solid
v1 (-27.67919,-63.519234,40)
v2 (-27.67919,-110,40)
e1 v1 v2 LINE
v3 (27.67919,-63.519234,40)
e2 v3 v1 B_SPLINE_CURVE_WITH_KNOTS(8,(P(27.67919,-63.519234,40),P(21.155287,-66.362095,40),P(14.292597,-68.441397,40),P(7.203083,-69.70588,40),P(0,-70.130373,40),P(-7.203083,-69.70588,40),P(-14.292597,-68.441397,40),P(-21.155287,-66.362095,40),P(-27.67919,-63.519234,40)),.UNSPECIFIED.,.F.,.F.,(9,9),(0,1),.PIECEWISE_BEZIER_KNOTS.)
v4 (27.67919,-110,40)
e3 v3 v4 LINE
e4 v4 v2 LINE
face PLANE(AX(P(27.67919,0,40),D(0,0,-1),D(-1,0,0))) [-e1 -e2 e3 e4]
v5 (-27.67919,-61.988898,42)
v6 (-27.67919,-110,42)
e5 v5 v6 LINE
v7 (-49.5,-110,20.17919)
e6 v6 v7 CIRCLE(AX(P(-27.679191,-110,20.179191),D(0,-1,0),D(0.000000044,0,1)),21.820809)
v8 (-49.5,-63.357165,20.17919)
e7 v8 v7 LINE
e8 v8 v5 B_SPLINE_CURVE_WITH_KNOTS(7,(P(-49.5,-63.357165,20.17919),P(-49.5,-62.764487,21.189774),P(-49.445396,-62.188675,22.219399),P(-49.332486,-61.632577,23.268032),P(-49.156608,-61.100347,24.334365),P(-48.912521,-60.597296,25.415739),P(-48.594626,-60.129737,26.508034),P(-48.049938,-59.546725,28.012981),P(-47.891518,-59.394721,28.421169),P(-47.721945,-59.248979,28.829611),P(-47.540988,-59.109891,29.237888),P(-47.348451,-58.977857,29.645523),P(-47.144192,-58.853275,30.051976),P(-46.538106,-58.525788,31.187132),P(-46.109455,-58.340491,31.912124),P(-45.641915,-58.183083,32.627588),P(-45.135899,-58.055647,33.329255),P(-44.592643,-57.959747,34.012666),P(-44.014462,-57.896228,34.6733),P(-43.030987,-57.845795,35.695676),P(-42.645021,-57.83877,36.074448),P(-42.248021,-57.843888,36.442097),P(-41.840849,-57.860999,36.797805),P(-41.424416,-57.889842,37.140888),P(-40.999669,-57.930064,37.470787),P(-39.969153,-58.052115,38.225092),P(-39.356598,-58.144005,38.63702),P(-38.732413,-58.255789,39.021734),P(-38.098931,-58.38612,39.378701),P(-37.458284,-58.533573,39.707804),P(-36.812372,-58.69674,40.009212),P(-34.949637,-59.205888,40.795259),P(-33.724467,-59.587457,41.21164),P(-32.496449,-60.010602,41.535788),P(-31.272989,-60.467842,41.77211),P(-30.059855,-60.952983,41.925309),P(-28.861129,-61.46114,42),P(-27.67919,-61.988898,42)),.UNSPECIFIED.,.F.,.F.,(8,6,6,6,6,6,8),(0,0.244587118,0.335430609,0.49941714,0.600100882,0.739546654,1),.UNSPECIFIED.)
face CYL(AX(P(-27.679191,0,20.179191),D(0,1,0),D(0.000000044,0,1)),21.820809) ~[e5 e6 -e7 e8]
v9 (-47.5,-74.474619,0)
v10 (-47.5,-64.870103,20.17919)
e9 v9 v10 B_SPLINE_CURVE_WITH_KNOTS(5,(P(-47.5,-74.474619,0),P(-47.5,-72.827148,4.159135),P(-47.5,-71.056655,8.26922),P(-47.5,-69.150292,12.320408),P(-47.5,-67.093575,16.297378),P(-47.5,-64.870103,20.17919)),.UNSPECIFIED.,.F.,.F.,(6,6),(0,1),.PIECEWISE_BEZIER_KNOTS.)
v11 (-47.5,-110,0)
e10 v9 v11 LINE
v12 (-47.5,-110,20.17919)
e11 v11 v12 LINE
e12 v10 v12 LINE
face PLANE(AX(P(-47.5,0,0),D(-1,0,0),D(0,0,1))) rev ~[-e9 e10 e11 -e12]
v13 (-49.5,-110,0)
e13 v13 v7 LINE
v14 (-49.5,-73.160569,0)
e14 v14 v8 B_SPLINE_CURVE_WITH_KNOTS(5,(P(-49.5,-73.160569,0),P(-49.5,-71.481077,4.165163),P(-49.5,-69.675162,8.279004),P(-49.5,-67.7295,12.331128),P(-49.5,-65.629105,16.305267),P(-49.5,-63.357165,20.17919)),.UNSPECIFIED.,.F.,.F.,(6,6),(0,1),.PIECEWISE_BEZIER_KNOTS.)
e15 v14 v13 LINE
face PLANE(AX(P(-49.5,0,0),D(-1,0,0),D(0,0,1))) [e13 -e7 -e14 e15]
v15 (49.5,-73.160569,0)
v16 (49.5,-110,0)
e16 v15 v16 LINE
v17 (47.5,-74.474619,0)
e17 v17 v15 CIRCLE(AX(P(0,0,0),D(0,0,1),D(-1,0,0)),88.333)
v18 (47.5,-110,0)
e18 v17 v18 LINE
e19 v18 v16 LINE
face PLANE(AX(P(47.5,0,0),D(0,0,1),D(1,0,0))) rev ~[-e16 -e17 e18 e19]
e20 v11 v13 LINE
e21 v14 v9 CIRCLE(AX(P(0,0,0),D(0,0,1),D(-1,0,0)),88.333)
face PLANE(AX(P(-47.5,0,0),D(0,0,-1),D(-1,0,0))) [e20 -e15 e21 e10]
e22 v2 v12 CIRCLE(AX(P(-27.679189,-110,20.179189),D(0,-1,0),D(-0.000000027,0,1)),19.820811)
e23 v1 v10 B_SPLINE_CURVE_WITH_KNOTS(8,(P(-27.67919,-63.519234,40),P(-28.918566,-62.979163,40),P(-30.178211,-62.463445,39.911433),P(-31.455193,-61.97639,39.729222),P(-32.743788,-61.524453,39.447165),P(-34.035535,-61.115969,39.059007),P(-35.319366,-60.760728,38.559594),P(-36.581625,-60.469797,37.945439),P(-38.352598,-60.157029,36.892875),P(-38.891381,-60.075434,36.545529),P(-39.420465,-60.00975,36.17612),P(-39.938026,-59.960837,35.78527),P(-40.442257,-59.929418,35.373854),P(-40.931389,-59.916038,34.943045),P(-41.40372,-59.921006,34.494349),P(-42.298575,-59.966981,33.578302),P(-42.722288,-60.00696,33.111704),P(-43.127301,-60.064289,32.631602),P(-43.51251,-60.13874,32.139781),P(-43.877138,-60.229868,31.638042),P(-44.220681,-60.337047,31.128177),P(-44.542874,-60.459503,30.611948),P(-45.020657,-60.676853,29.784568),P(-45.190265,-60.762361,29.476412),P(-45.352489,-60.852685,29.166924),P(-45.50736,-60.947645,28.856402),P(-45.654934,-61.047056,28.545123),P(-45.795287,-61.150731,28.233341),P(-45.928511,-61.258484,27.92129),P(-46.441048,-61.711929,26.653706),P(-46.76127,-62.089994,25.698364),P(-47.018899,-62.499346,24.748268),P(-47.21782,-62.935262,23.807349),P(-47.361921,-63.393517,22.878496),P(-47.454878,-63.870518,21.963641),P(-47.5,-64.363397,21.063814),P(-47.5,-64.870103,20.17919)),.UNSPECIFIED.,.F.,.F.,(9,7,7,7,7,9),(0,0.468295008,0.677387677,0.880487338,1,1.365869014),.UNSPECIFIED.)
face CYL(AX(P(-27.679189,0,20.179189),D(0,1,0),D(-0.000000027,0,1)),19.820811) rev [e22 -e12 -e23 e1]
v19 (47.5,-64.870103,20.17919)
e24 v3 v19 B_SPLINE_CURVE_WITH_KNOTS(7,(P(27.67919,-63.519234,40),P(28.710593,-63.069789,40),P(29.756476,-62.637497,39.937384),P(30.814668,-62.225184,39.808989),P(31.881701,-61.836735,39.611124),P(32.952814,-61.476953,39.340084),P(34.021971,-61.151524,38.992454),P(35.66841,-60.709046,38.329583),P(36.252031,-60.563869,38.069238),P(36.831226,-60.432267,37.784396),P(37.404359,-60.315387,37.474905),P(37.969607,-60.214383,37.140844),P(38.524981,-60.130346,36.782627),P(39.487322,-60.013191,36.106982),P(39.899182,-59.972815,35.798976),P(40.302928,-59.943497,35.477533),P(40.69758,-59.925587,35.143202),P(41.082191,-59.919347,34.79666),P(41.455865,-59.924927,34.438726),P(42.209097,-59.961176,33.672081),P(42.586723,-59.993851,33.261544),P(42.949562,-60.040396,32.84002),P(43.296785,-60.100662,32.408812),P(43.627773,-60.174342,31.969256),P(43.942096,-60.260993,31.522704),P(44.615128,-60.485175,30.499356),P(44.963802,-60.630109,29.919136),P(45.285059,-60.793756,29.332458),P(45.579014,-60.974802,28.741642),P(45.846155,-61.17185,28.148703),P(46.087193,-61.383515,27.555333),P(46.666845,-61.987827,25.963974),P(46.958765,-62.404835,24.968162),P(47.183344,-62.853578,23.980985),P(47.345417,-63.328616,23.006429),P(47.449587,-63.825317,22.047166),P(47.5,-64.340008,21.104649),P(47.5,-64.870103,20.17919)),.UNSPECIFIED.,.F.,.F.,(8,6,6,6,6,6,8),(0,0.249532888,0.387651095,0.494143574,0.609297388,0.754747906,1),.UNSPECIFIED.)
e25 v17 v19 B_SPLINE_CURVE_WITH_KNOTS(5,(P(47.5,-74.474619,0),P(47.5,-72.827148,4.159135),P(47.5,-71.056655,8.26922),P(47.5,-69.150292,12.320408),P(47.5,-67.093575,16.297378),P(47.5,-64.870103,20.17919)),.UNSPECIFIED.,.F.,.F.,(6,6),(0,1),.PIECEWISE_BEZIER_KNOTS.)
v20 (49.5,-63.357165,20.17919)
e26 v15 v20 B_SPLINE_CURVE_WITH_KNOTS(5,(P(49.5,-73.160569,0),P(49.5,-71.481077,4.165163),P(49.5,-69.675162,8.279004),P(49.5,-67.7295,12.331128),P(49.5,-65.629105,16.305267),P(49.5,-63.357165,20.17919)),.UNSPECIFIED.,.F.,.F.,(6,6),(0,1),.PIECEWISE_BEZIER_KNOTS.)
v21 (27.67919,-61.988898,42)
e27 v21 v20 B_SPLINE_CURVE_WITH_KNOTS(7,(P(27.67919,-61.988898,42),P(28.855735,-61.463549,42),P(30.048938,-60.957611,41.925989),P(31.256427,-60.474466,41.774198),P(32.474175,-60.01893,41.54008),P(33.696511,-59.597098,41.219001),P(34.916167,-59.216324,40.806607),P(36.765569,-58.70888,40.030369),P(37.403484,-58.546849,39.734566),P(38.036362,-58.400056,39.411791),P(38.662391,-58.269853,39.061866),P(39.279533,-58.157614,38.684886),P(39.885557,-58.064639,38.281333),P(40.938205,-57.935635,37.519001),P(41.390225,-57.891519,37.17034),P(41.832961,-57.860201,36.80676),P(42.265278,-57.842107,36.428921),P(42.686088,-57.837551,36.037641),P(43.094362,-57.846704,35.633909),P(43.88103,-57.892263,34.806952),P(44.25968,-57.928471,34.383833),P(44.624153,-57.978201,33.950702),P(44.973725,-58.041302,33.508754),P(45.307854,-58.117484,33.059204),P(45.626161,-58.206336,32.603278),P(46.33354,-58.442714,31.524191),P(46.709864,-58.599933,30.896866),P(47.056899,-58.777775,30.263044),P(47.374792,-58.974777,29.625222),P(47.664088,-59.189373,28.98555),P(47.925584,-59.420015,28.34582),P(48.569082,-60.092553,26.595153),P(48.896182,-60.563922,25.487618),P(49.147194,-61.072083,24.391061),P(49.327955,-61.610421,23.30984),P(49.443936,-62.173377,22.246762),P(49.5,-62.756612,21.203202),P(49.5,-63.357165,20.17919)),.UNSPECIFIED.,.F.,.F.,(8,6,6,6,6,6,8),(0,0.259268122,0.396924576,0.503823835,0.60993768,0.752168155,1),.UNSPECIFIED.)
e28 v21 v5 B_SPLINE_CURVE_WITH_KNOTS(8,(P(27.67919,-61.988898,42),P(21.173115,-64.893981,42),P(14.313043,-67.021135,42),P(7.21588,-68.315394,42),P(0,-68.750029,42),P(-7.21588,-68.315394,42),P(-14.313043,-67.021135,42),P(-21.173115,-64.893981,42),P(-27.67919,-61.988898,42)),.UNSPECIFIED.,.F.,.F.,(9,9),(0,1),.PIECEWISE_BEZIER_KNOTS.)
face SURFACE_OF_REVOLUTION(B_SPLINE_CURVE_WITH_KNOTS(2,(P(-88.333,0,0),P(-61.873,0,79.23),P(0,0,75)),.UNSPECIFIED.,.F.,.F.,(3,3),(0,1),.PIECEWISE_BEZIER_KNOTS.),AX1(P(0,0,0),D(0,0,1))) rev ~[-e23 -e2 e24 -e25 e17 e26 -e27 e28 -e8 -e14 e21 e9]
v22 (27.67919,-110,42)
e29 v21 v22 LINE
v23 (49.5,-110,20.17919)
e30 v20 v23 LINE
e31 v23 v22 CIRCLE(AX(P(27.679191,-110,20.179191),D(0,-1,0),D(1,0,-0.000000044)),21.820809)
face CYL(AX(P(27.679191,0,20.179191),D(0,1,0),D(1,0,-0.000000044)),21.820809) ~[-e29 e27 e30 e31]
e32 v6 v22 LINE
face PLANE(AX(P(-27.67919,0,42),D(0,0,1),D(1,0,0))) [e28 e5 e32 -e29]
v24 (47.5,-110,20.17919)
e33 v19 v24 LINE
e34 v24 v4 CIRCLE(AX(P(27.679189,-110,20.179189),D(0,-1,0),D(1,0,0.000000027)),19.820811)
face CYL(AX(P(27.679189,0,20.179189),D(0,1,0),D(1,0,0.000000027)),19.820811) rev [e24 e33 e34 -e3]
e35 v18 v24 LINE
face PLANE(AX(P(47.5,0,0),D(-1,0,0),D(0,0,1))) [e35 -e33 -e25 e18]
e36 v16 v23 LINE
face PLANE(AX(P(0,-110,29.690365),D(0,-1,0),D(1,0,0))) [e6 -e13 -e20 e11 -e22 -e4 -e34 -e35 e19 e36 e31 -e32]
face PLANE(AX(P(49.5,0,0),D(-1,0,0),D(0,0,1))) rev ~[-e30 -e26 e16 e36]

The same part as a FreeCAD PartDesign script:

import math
import FreeCAD as App
import Part
import Sketcher

doc = App.newDocument("Part")
body = doc.addObject("PartDesign::Body", "Body")

# Sketch on XZ plane
sketch1 = doc.addObject("Sketcher::SketchObject", "Sketch")
body.addObject(sketch1)
sketch1.AttachmentSupport = (doc.XZ_Plane, [""])
sketch1.MapMode = "FlatFace"
sketch1.addGeometry(Part.BSplineCurve([App.Vector(-88.333, 0, 0), App.Vector(-61.873, 79.23, 0), App.Vector(0, 75, 0)], [3, 3], [0, 1], False, 2, [1, 1, 1], False), False)
sketch1.addGeometry(Part.LineSegment(App.Vector(-88.333, 0, 0), App.Vector(0, 0, 0)), False)
sketch1.addGeometry(Part.LineSegment(App.Vector(0, 0, 0), App.Vector(0, 75, 0)), False)
sketch1.addConstraint(Sketcher.Constraint("Block", 0))
sketch1.addConstraint(Sketcher.Constraint("Coincident", 0, 1, 1, 1))
sketch1.addConstraint(Sketcher.Constraint("Coincident", 1, 2, 2, 1))
sketch1.addConstraint(Sketcher.Constraint("Coincident", 2, 2, 0, 2))
sketch1.addConstraint(Sketcher.Constraint("Horizontal", 1))
sketch1.addConstraint(Sketcher.Constraint("Vertical", 2))
revolution = doc.addObject("PartDesign::Revolution", "Revolution")
body.addObject(revolution)
revolution.Profile = sketch1
revolution.ReferenceAxis = (sketch1, ["V_Axis"])
revolution.Angle = 360
body2 = doc.addObject("PartDesign::Body", "Body001")

# Sketch on XZ plane
sketch2 = doc.addObject("Sketcher::SketchObject", "Sketch001")
body2.addObject(sketch2)
sketch2.AttachmentSupport = (doc.getObject("XZ_Plane001"), [""])
sketch2.MapMode = "FlatFace"
sketch2.addGeometry(Part.LineSegment(App.Vector(-47.5, 0, 0), App.Vector(-47.5, 20.17919, 0)), False)
sketch2.addGeometry(Part.ArcOfCircle(Part.Circle(App.Vector(-27.679189, 20.179189, 0), App.Vector(0, 0, 1), 19.820811), math.radians(90.000002), math.radians(179.999998)), False)
sketch2.addGeometry(Part.LineSegment(App.Vector(-27.67919, 40, 0), App.Vector(27.67919, 40, 0)), False)
sketch2.addGeometry(Part.ArcOfCircle(Part.Circle(App.Vector(27.679189, 20.179189, 0), App.Vector(0, 0, 1), 19.820811), math.radians(0.000002), math.radians(89.999998)), False)
sketch2.addGeometry(Part.LineSegment(App.Vector(47.5, 20.17919, 0), App.Vector(47.5, 0, 0)), False)
sketch2.addGeometry(Part.LineSegment(App.Vector(47.5, 0, 0), App.Vector(49.5, 0, 0)), False)
sketch2.addGeometry(Part.LineSegment(App.Vector(49.5, 0, 0), App.Vector(49.5, 20.17919, 0)), False)
sketch2.addGeometry(Part.ArcOfCircle(Part.Circle(App.Vector(27.679191, 20.179191, 0), App.Vector(0, 0, 1), 21.820809), math.radians(-0.000002), math.radians(90.000002)), False)
sketch2.addGeometry(Part.LineSegment(App.Vector(27.67919, 42, 0), App.Vector(-27.67919, 42, 0)), False)
sketch2.addGeometry(Part.ArcOfCircle(Part.Circle(App.Vector(-27.679191, 20.179191, 0), App.Vector(0, 0, 1), 21.820809), math.radians(89.999998), math.radians(180.000002)), False)
sketch2.addGeometry(Part.LineSegment(App.Vector(-49.5, 20.17919, 0), App.Vector(-49.5, 0, 0)), False)
sketch2.addGeometry(Part.LineSegment(App.Vector(-49.5, 0, 0), App.Vector(-47.5, 0, 0)), False)
sketch2.addConstraint(Sketcher.Constraint("Tangent", 0, 2, 1, 2))
sketch2.addConstraint(Sketcher.Constraint("Tangent", 1, 1, 2, 1))
sketch2.addConstraint(Sketcher.Constraint("Tangent", 2, 2, 3, 2))
sketch2.addConstraint(Sketcher.Constraint("Tangent", 3, 1, 4, 1))
sketch2.addConstraint(Sketcher.Constraint("Coincident", 4, 2, 5, 1))
sketch2.addConstraint(Sketcher.Constraint("Coincident", 5, 2, 6, 1))
sketch2.addConstraint(Sketcher.Constraint("Tangent", 6, 2, 7, 1))
sketch2.addConstraint(Sketcher.Constraint("Tangent", 7, 2, 8, 1))
sketch2.addConstraint(Sketcher.Constraint("Tangent", 8, 2, 9, 1))
sketch2.addConstraint(Sketcher.Constraint("Tangent", 9, 2, 10, 1))
sketch2.addConstraint(Sketcher.Constraint("Coincident", 10, 2, 11, 1))
sketch2.addConstraint(Sketcher.Constraint("Coincident", 11, 2, 0, 1))
sketch2.addConstraint(Sketcher.Constraint("Vertical", 0))
sketch2.addConstraint(Sketcher.Constraint("Horizontal", 2))
sketch2.addConstraint(Sketcher.Constraint("Vertical", 4))
sketch2.addConstraint(Sketcher.Constraint("Horizontal", 5))
sketch2.addConstraint(Sketcher.Constraint("Vertical", 6))
sketch2.addConstraint(Sketcher.Constraint("Horizontal", 8))
sketch2.addConstraint(Sketcher.Constraint("Vertical", 10))
sketch2.addConstraint(Sketcher.Constraint("Horizontal", 11))
sketch2.addConstraint(Sketcher.Constraint("Coincident", 7, 3, 3, 3))
sketch2.addConstraint(Sketcher.Constraint("Coincident", 9, 3, 1, 3))
sketch2.addConstraint(Sketcher.Constraint("Equal", 1, 3))
sketch2.addConstraint(Sketcher.Constraint("Symmetric", 5, 2, 10, 2, -1, 1))
sketch2.addConstraint(Sketcher.Constraint("PointOnObject", 4, 2, -1))
sketch2.addConstraint(Sketcher.Constraint("DistanceX", 5, 1, 5, 2, 2.0))
sketch2.addConstraint(Sketcher.Constraint("DistanceY", -1, 1, 1, 1, 40.0))
sketch2.addConstraint(Sketcher.Constraint("DistanceX", 0, 2, -1, 1, 47.5))
sketch2.addConstraint(Sketcher.Constraint("Radius", 1, 19.820811))
pad1 = doc.addObject("PartDesign::Pad", "Pad")
body2.addObject(pad1)
pad1.Profile = sketch2
pad1.Length = 110
doc.recompute()

boolean = doc.addObject("PartDesign::Boolean", "Boolean")
body2.addObject(boolean)
boolean.Type = "Cut"
boolean.addObjects([body])

doc.recompute()
